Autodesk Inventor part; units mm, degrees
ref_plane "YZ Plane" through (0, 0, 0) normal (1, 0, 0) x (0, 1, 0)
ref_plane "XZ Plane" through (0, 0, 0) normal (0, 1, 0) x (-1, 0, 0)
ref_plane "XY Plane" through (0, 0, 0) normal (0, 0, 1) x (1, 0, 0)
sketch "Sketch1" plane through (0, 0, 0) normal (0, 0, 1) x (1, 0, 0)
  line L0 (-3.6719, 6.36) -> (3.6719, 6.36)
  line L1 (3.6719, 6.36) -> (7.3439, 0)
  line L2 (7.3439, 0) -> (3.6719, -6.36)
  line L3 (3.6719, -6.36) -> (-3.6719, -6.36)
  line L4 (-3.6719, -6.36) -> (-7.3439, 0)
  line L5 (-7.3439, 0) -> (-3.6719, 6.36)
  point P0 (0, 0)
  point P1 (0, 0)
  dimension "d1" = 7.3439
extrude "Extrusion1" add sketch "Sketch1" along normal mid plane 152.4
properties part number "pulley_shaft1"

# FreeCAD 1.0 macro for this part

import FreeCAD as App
import Part
import Sketcher
from FreeCAD import Vector
Q = App.Units.Quantity

doc = App.newDocument("Part")
body = doc.addObject("PartDesign::Body", "Body")

sketch1 = body.newObject("Sketcher::SketchObject", "Sketch")
sketch1.AttachmentSupport = (doc.getObject("XY_Plane"), [""])
sketch1.MapMode = "FlatFace"
sketch1.addGeometry([
    Part.LineSegment(Vector(4, 6, 0), Vector(-4, 6, 0)),
    Part.LineSegment(Vector(-4, 6, 0), Vector(-7, 0, 0)),
    Part.LineSegment(Vector(-7, 0, 0), Vector(-4, -6, 0)),
    Part.LineSegment(Vector(-4, -6, 0), Vector(4, -6, 0)),
    Part.LineSegment(Vector(4, -6, 0), Vector(7, 0, 0)),
    Part.LineSegment(Vector(7, 0, 0), Vector(4, 6, 0)),
], False)
sketch1.addConstraint([
    Sketcher.Constraint("Coincident", 0, 2, 1, 1),
    Sketcher.Constraint("Coincident", 1, 2, 2, 1),
    Sketcher.Constraint("Coincident", 2, 2, 3, 1),
    Sketcher.Constraint("Coincident", 3, 2, 4, 1),
    Sketcher.Constraint("Coincident", 4, 2, 5, 1),
    Sketcher.Constraint("Coincident", 5, 2, 0, 1),
    Sketcher.Constraint("Horizontal", 0),
    Sketcher.Constraint("Horizontal", 3),
    Sketcher.Constraint("Symmetric", 0, 2, 3, 2, -1, 1),
    Sketcher.Constraint("Symmetric", 1, 2, 4, 2, -1, 1),
    Sketcher.Constraint("PointOnObject", 1, 2, -1),
    Sketcher.Constraint("Parallel", 2, 5),
    Sketcher.Constraint("Vertical", 0, 2, 2, 2),
    Sketcher.Constraint("Angle", 1, Q("-120.0004 deg")),
    Sketcher.Constraint("DistanceX", 0, 2, 0, 1, 7.3438),
    Sketcher.Constraint("Distance", 1, 7.344),
])
pad1 = body.newObject("PartDesign::Pad", "Pad")
pad1.Profile = sketch1
pad1.Length = Q("6 in")
pad1.Midplane = True

doc.recompute()
